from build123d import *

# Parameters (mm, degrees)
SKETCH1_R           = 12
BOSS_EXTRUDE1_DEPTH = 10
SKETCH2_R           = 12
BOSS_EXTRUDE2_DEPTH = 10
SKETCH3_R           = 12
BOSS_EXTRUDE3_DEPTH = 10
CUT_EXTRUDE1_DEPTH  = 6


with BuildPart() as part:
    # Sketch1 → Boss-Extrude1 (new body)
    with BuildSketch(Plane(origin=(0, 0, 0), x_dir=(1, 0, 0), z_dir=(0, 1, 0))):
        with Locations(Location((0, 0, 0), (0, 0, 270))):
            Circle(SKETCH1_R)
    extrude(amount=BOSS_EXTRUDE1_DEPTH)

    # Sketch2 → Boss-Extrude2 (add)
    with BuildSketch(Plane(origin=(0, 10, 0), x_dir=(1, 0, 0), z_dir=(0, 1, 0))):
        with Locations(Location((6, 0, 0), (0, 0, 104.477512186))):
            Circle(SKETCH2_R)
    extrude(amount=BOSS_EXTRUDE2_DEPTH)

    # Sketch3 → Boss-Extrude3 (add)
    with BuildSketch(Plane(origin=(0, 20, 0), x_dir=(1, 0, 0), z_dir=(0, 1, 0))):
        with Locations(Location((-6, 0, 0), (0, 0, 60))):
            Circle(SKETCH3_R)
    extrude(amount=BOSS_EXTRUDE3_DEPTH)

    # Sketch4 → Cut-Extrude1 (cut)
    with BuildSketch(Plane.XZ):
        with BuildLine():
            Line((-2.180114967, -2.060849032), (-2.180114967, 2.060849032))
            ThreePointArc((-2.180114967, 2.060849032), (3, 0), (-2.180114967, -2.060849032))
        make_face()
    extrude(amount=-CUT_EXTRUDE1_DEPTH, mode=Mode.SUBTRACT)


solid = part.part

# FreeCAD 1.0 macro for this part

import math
import FreeCAD as App
import Part
import Sketcher

V = App.Vector

doc = App.newDocument("Part")
params = doc.addObject("Spreadsheet::Sheet", "Params")
for row, (alias, value) in enumerate([
    ("sketch1_diameter", "24 mm"),
    ("pad1_length", "10 mm"),
    ("sketch2_diameter", "24 mm"),
    ("pad2_length", "10 mm"),
    ("sketch3_diameter", "24 mm"),
    ("pad3_length", "10 mm"),
    ("sketch4_radius", "3 mm"),
    ("pocket1_length", "6 mm"),
], start=1):
    params.set(f"A{row}", alias)
    params.set(f"B{row}", "=" + value)
    params.setAlias(f"B{row}", alias)

body = doc.addObject("PartDesign::Body", "Body")

# Sketch on XZ plane
sketch1 = body.newObject("Sketcher::SketchObject", "Sketch")
sketch1.AttachmentSupport = (doc.getObject("XZ_Plane"), [""])
sketch1.MapMode = "FlatFace"
sketch1.addGeometry(Part.Circle(V(0, 0, 0), V(0, 0, 1), 12), False)
sketch1.addConstraint(Sketcher.Constraint("Coincident", 0, 3, -1, 1))
sketch1.addConstraint(Sketcher.Constraint("Diameter", 0, 24.0))
sketch1.setExpression("Constraints[1]", "Params.sketch1_diameter")
pad1 = body.newObject("PartDesign::Pad", "Pad")
pad1.Profile = sketch1
pad1.setExpression("Length", "Params.pad1_length")
pad1.Reversed = True

# Sketch on XZ plane
sketch2 = body.newObject("Sketcher::SketchObject", "Sketch001")
sketch2.AttachmentSupport = (doc.getObject("XZ_Plane"), [""])
sketch2.MapMode = "FlatFace"
sketch2.AttachmentOffset = App.Placement(V(0, 0, -10), App.Rotation())
sketch2.addGeometry(Part.Circle(V(6, 0, 0), V(0, 0, 1), 12), False)
sketch2.addConstraint(Sketcher.Constraint("PointOnObject", 0, 3, -1))
sketch2.addConstraint(Sketcher.Constraint("Diameter", 0, 24.0))
sketch2.addConstraint(Sketcher.Constraint("DistanceX", -1, 1, 0, 3, 6.0))
sketch2.setExpression("Constraints[1]", "Params.sketch2_diameter")
pad2 = body.newObject("PartDesign::Pad", "Pad001")
pad2.Profile = sketch2
pad2.setExpression("Length", "Params.pad2_length")
pad2.Reversed = True

# Sketch on XZ plane
sketch3 = body.newObject("Sketcher::SketchObject", "Sketch002")
sketch3.AttachmentSupport = (doc.getObject("XZ_Plane"), [""])
sketch3.MapMode = "FlatFace"
sketch3.AttachmentOffset = App.Placement(V(0, 0, -20), App.Rotation())
sketch3.addGeometry(Part.Circle(V(-6, 0, 0), V(0, 0, 1), 12), False)
sketch3.addConstraint(Sketcher.Constraint("PointOnObject", 0, 3, -1))
sketch3.addConstraint(Sketcher.Constraint("Diameter", 0, 24.0))
sketch3.addConstraint(Sketcher.Constraint("DistanceX", 0, 3, -1, 1, 6.0))
sketch3.setExpression("Constraints[1]", "Params.sketch3_diameter")
pad3 = body.newObject("PartDesign::Pad", "Pad002")
pad3.Profile = sketch3
pad3.setExpression("Length", "Params.pad3_length")
pad3.Reversed = True

# Sketch on XZ plane
sketch4 = body.newObject("Sketcher::SketchObject", "Sketch003")
sketch4.AttachmentSupport = (doc.getObject("XZ_Plane"), [""])
sketch4.MapMode = "FlatFace"
sketch4.addGeometry(Part.LineSegment(V(-2.180115, 2.060849, 0), V(-2.180115, -2.060849, 0)), False)
sketch4.addGeometry(Part.ArcOfCircle(Part.Circle(V(0, 0, 0), V(0, 0, 1), 3), math.radians(-136.610868), math.radians(136.610868)), False)
sketch4.addConstraint(Sketcher.Constraint("Coincident", 0, 1, 1, 2))
sketch4.addConstraint(Sketcher.Constraint("Coincident", 1, 1, 0, 2))
sketch4.addConstraint(Sketcher.Constraint("Vertical", 0))
sketch4.addConstraint(Sketcher.Constraint("Coincident", 1, 3, -1, 1))
sketch4.addConstraint(Sketcher.Constraint("Radius", 1, 3.0))
sketch4.addConstraint(Sketcher.Constraint("DistanceY", 0, 2, 0, 1, 4.121698))
sketch4.setExpression("Constraints[4]", "Params.sketch4_radius")
pocket1 = body.newObject("PartDesign::Pocket", "Pocket")
pocket1.Profile = sketch4
pocket1.setExpression("Length", "Params.pocket1_length")

doc.recompute()
